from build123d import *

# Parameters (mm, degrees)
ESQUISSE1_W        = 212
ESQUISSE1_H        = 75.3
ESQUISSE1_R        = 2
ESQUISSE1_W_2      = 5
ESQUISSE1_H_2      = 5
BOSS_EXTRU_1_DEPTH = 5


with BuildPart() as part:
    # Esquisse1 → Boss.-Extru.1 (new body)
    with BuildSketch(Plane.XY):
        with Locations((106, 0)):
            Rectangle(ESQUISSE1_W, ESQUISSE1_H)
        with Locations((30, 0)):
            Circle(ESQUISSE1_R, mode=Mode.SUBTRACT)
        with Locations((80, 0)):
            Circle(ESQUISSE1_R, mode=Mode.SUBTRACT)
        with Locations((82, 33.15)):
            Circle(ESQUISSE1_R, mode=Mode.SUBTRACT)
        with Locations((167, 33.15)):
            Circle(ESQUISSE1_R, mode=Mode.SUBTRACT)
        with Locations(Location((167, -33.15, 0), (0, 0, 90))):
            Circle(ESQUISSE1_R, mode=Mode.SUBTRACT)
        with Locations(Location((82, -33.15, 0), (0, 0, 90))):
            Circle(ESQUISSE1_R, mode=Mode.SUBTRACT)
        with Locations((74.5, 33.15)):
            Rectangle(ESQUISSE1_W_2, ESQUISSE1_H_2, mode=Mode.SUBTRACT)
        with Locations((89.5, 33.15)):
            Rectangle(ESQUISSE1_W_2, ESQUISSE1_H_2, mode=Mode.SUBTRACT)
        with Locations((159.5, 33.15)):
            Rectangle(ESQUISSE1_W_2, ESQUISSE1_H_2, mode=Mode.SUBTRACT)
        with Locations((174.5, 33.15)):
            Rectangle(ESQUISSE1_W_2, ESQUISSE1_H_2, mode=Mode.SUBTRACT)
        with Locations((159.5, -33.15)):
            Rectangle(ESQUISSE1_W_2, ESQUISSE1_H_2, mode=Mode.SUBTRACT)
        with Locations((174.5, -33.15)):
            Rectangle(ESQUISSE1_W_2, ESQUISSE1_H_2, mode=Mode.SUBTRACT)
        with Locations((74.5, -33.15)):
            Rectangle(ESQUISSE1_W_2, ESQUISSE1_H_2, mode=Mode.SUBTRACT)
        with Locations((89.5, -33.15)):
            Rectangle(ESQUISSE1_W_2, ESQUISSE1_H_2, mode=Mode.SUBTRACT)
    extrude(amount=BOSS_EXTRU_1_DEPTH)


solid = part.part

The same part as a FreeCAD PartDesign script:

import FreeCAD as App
import Part
import Sketcher

V = App.Vector


def add_polygon(sketch, points):
    """Adds a closed chain of lines whose ends are joined by coincident constraints."""
    first, n = sketch.GeometryCount, len(points)
    for a, b in zip(points, points[1:] + points[:1]):
        sketch.addGeometry(Part.LineSegment(App.Vector(*a, 0), App.Vector(*b, 0)), False)
    for i in range(n):
        sketch.addConstraint(Sketcher.Constraint("Coincident", first + i, 2, first + (i + 1) % n, 1))

doc = App.newDocument("Part")
body = doc.addObject("PartDesign::Body", "Body")

# Sketch on XY plane
sketch1 = body.newObject("Sketcher::SketchObject", "Sketch")
sketch1.AttachmentSupport = (doc.getObject("XY_Plane"), [""])
sketch1.MapMode = "FlatFace"
add_polygon(sketch1, [(0, 37.65), (0, -37.65), (212, -37.65), (212, 37.65)])  # lines 0-3
add_polygon(sketch1, [(77, -35.65), (72, -35.65), (72, -30.65), (77, -30.65)])  # lines 4-7
sketch1.addGeometry(Part.Circle(V(82, -33.15, 0), V(0, 0, 1), 2), False)  # 8
add_polygon(sketch1, [(92, -35.65), (87, -35.65), (87, -30.65), (92, -30.65)])  # lines 9-12
add_polygon(sketch1, [(162, -35.65), (157, -35.65), (157, -30.65), (162, -30.65)])  # lines 13-16
sketch1.addGeometry(Part.Circle(V(167, -33.15, 0), V(0, 0, 1), 2), False)  # 17
add_polygon(sketch1, [(177, -35.65), (172, -35.65), (172, -30.65), (177, -30.65)])  # lines 18-21
sketch1.addGeometry(Part.Circle(V(30, 0, 0), V(0, 0, 1), 2), False)  # 22
sketch1.addGeometry(Part.Circle(V(80, 0, 0), V(0, 0, 1), 2), False)  # 23
add_polygon(sketch1, [(77, 30.65), (72, 30.65), (72, 35.65), (77, 35.65)])  # lines 24-27
sketch1.addGeometry(Part.Circle(V(82, 33.15, 0), V(0, 0, 1), 2), False)  # 28
add_polygon(sketch1, [(92, 30.65), (87, 30.65), (87, 35.65), (92, 35.65)])  # lines 29-32
add_polygon(sketch1, [(162, 30.65), (157, 30.65), (157, 35.65), (162, 35.65)])  # lines 33-36
sketch1.addGeometry(Part.Circle(V(167, 33.15, 0), V(0, 0, 1), 2), False)  # 37
add_polygon(sketch1, [(177, 30.65), (172, 30.65), (172, 35.65), (177, 35.65)])  # lines 38-41
sketch1.addConstraint(Sketcher.Constraint("Vertical", 0))
sketch1.addConstraint(Sketcher.Constraint("Horizontal", 1))
sketch1.addConstraint(Sketcher.Constraint("Vertical", 2))
sketch1.addConstraint(Sketcher.Constraint("Horizontal", 3))
sketch1.addConstraint(Sketcher.Constraint("Horizontal", 4))
sketch1.addConstraint(Sketcher.Constraint("Vertical", 5))
sketch1.addConstraint(Sketcher.Constraint("Horizontal", 6))
sketch1.addConstraint(Sketcher.Constraint("Vertical", 7))
sketch1.addConstraint(Sketcher.Constraint("Horizontal", 9))
sketch1.addConstraint(Sketcher.Constraint("Vertical", 10))
sketch1.addConstraint(Sketcher.Constraint("Horizontal", 11))
sketch1.addConstraint(Sketcher.Constraint("Vertical", 12))
sketch1.addConstraint(Sketcher.Constraint("Horizontal", 13))
sketch1.addConstraint(Sketcher.Constraint("Vertical", 14))
sketch1.addConstraint(Sketcher.Constraint("Horizontal", 15))
sketch1.addConstraint(Sketcher.Constraint("Vertical", 16))
sketch1.addConstraint(Sketcher.Constraint("Horizontal", 18))
sketch1.addConstraint(Sketcher.Constraint("Vertical", 19))
sketch1.addConstraint(Sketcher.Constraint("Horizontal", 20))
sketch1.addConstraint(Sketcher.Constraint("Vertical", 21))
sketch1.addConstraint(Sketcher.Constraint("Horizontal", 24))
sketch1.addConstraint(Sketcher.Constraint("Vertical", 25))
sketch1.addConstraint(Sketcher.Constraint("Horizontal", 26))
sketch1.addConstraint(Sketcher.Constraint("Vertical", 27))
sketch1.addConstraint(Sketcher.Constraint("Horizontal", 29))
sketch1.addConstraint(Sketcher.Constraint("Vertical", 30))
sketch1.addConstraint(Sketcher.Constraint("Horizontal", 31))
sketch1.addConstraint(Sketcher.Constraint("Vertical", 32))
sketch1.addConstraint(Sketcher.Constraint("Horizontal", 33))
sketch1.addConstraint(Sketcher.Constraint("Vertical", 34))
sketch1.addConstraint(Sketcher.Constraint("Horizontal", 35))
sketch1.addConstraint(Sketcher.Constraint("Vertical", 36))
sketch1.addConstraint(Sketcher.Constraint("Horizontal", 38))
sketch1.addConstraint(Sketcher.Constraint("Vertical", 39))
sketch1.addConstraint(Sketcher.Constraint("Horizontal", 40))
sketch1.addConstraint(Sketcher.Constraint("Vertical", 41))
sketch1.addConstraint(Sketcher.Constraint("Equal", 8, 17))
sketch1.addConstraint(Sketcher.Constraint("Equal", 17, 22))
sketch1.addConstraint(Sketcher.Constraint("Equal", 22, 23))
sketch1.addConstraint(Sketcher.Constraint("Equal", 23, 28))
sketch1.addConstraint(Sketcher.Constraint("Equal", 28, 37))
sketch1.addConstraint(Sketcher.Constraint("Symmetric", 0, 2, 3, 2, -1, 1))
sketch1.addConstraint(Sketcher.Constraint("Symmetric", 8, 3, 28, 3, -1))
sketch1.addConstraint(Sketcher.Constraint("Symmetric", 17, 3, 37, 3, -1))
sketch1.addConstraint(Sketcher.Constraint("Symmetric", 5, 2, 24, 2, -1))
sketch1.addConstraint(Sketcher.Constraint("Symmetric", 7, 2, 26, 2, -1))
sketch1.addConstraint(Sketcher.Constraint("Symmetric", 10, 2, 29, 2, -1))
sketch1.addConstraint(Sketcher.Constraint("Symmetric", 12, 2, 31, 2, -1))
sketch1.addConstraint(Sketcher.Constraint("Symmetric", 14, 2, 33, 2, -1))
sketch1.addConstraint(Sketcher.Constraint("Symmetric", 16, 2, 35, 2, -1))
sketch1.addConstraint(Sketcher.Constraint("Symmetric", 19, 2, 38, 2, -1))
sketch1.addConstraint(Sketcher.Constraint("Symmetric", 21, 2, 40, 2, -1))
sketch1.addConstraint(Sketcher.Constraint("PointOnObject", 22, 3, -1))
sketch1.addConstraint(Sketcher.Constraint("PointOnObject", 23, 3, -1))
sketch1.addConstraint(Sketcher.Constraint("Horizontal", 8, 3, 17, 3))
sketch1.addConstraint(Sketcher.Constraint("Horizontal", 7, 2, 9, 2))
sketch1.addConstraint(Sketcher.Constraint("Horizontal", 6, 2, 10, 2))
sketch1.addConstraint(Sketcher.Constraint("Horizontal", 12, 2, 13, 2))
sketch1.addConstraint(Sketcher.Constraint("Horizontal", 11, 2, 14, 2))
sketch1.addConstraint(Sketcher.Constraint("Horizontal", 16, 2, 18, 2))
sketch1.addConstraint(Sketcher.Constraint("Horizontal", 15, 2, 19, 2))
sketch1.addConstraint(Sketcher.Constraint("Equal", 6, 9))
sketch1.addConstraint(Sketcher.Constraint("Equal", 11, 13))
sketch1.addConstraint(Sketcher.Constraint("Equal", 15, 18))
sketch1.addConstraint(Sketcher.Constraint("Equal", 40, 5))
sketch1.addConstraint(Sketcher.Constraint("Diameter", 8, 4.0))
sketch1.addConstraint(Sketcher.Constraint("DistanceX", 1, 1, 1, 2, 212.0))
sketch1.addConstraint(Sketcher.Constraint("DistanceX", 4, 2, 4, 1, 5.0))
sketch1.addConstraint(Sketcher.Constraint("DistanceY", 0, 2, 0, 1, 75.3))
sketch1.addConstraint(Sketcher.Constraint("DistanceX", -1, 1, 8, 3, 82.0))
sketch1.addConstraint(Sketcher.Constraint("DistanceX", -1, 1, 17, 3, 167.0))
sketch1.addConstraint(Sketcher.Constraint("DistanceX", -1, 1, 22, 3, 30.0))
sketch1.addConstraint(Sketcher.Constraint("DistanceX", -1, 1, 23, 3, 80.0))
sketch1.addConstraint(Sketcher.Constraint("DistanceX", -1, 1, 4, 2, 72.0))
sketch1.addConstraint(Sketcher.Constraint("DistanceX", -1, 1, 9, 2, 87.0))
sketch1.addConstraint(Sketcher.Constraint("DistanceX", -1, 1, 13, 2, 157.0))
sketch1.addConstraint(Sketcher.Constraint("DistanceX", -1, 1, 18, 2, 172.0))
sketch1.addConstraint(Sketcher.Constraint("DistanceY", 0, 2, 4, 2, 2.0))
sketch1.addConstraint(Sketcher.Constraint("DistanceY", 8, 3, 28, 3, 66.3))
pad1 = body.newObject("PartDesign::Pad", "Pad")
pad1.Profile = sketch1
pad1.Length = 5

doc.recompute()
